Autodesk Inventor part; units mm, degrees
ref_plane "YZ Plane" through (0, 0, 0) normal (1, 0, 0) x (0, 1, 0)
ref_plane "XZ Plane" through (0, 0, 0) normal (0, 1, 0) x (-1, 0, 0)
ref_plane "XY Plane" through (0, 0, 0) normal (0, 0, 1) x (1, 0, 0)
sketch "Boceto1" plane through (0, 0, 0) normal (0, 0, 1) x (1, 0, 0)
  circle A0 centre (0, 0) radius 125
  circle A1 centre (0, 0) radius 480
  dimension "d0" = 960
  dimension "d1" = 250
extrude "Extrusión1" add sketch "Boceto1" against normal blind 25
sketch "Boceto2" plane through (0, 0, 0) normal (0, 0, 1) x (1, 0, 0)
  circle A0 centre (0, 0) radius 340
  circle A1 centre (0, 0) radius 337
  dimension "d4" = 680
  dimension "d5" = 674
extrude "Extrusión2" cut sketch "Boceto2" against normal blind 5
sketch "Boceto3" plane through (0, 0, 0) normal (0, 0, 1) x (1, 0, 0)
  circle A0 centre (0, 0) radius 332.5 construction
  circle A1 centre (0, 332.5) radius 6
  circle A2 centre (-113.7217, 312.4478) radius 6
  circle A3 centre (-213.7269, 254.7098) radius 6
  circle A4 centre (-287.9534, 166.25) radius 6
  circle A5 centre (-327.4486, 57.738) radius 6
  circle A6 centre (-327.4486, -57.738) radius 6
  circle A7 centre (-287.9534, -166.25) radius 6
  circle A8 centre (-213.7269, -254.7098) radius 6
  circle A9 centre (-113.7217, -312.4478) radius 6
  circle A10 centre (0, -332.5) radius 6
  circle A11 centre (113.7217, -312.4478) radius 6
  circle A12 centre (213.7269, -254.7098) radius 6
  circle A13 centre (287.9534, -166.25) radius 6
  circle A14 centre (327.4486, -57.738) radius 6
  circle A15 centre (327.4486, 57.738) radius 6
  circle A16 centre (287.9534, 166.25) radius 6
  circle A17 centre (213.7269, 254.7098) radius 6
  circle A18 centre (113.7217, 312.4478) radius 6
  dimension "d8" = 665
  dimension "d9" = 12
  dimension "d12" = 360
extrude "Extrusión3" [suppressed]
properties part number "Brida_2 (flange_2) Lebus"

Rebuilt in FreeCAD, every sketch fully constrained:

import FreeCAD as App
import Part
import Sketcher
Q = App.Units.Quantity

doc = App.newDocument("Part")
body = doc.addObject("PartDesign::Body", "Body")

sketch1 = body.newObject("Sketcher::SketchObject", "Sketch")
sketch1.AttachmentSupport = (doc.getObject("XY_Plane"), [""])
sketch1.MapMode = "FlatFace"
sketch1.addGeometry([
    Part.Circle(App.Vector(0, 0, 0), App.Vector(0, 0, 1), 480),
    Part.Circle(App.Vector(0, 0, 0), App.Vector(0, 0, 1), 125),
], False)
sketch1.addConstraint([
    Sketcher.Constraint("Coincident", 0, 3, -1, 1),
    Sketcher.Constraint("Coincident", 1, 3, -1, 1),
    Sketcher.Constraint("Diameter", 0, Q("960 mm")),
    Sketcher.Constraint("Diameter", 1, Q("250 mm")),
])
pad1 = body.newObject("PartDesign::Pad", "Pad")
pad1.Profile = sketch1
pad1.Length = 25
pad1.Reversed = True

sketch2 = body.newObject("Sketcher::SketchObject", "Sketch001")
sketch2.AttachmentSupport = (doc.getObject("XY_Plane"), [""])
sketch2.MapMode = "FlatFace"
sketch2.addGeometry([
    Part.Circle(App.Vector(0, 0, 0), App.Vector(0, 0, 1), 340),
    Part.Circle(App.Vector(0, 0, 0), App.Vector(0, 0, 1), 337),
], False)
sketch2.addConstraint([
    Sketcher.Constraint("Coincident", 0, 3, -1, 1),
    Sketcher.Constraint("Coincident", 1, 3, -1, 1),
    Sketcher.Constraint("Diameter", 0, Q("680 mm")),
    Sketcher.Constraint("Diameter", 1, Q("674 mm")),
])
pocket1 = body.newObject("PartDesign::Pocket", "Pocket")
pocket1.Profile = sketch2
pocket1.Length = 5

doc.recompute()
